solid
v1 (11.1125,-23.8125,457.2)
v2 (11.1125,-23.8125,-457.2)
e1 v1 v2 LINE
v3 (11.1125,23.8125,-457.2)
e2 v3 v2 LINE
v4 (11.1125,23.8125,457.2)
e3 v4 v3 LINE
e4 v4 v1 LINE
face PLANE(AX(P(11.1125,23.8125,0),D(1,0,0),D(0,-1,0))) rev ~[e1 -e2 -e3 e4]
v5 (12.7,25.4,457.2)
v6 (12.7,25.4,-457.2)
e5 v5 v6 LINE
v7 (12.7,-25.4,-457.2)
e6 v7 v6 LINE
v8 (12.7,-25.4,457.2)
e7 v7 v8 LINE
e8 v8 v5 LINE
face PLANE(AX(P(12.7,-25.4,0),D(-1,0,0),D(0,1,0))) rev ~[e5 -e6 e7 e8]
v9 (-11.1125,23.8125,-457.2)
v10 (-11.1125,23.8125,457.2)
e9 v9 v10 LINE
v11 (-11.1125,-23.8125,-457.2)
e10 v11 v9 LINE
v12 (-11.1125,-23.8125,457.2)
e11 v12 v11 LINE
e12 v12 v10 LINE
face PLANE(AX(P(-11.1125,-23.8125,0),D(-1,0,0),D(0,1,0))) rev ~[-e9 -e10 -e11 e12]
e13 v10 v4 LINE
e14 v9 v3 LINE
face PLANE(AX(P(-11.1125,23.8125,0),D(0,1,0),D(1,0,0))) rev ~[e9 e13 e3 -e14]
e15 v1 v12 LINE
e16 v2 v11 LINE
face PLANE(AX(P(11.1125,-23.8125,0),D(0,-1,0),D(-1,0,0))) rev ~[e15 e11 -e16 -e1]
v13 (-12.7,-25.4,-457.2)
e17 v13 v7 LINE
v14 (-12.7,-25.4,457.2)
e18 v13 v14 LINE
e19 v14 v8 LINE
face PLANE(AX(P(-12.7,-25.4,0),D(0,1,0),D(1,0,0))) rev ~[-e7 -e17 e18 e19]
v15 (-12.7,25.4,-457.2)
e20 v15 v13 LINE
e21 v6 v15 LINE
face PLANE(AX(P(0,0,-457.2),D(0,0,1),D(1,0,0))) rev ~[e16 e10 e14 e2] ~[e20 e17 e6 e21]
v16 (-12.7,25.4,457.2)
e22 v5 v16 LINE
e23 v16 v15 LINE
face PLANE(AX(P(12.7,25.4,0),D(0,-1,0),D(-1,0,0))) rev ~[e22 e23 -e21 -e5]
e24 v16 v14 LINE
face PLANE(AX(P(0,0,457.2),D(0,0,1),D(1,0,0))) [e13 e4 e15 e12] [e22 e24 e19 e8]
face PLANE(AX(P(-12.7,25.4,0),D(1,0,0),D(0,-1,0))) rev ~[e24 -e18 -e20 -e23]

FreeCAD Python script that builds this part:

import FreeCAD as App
import Part
import Sketcher

V = App.Vector
Q = App.Units.Quantity


def add_polygon(sketch, points):
    """Adds a closed chain of lines whose ends are joined by coincident constraints."""
    first, n = sketch.GeometryCount, len(points)
    for a, b in zip(points, points[1:] + points[:1]):
        sketch.addGeometry(Part.LineSegment(App.Vector(*a, 0), App.Vector(*b, 0)), False)
    for i in range(n):
        sketch.addConstraint(Sketcher.Constraint("Coincident", first + i, 2, first + (i + 1) % n, 1))

doc = App.newDocument("Part")
body = doc.addObject("PartDesign::Body", "Body")

# Sketch on XY plane
sketch1 = body.newObject("Sketcher::SketchObject", "Sketch")
sketch1.AttachmentSupport = (doc.getObject("XY_Plane"), [""])
sketch1.MapMode = "FlatFace"
add_polygon(sketch1, [(-12.7, 25.4), (-12.7, -25.4), (12.7, -25.4), (12.7, 25.4)])  # lines 0-3
add_polygon(sketch1, [(-11.1125, -23.8125), (-11.1125, 23.8125), (11.1125, 23.8125), (11.1125, -23.8125)])  # lines 4-7
sketch1.addConstraint([
    Sketcher.Constraint("Vertical", 0),
    Sketcher.Constraint("Horizontal", 1),
    Sketcher.Constraint("Vertical", 2),
    Sketcher.Constraint("Horizontal", 3),
    Sketcher.Constraint("Vertical", 4),
    Sketcher.Constraint("Horizontal", 5),
    Sketcher.Constraint("Vertical", 6),
    Sketcher.Constraint("Horizontal", 7),
    Sketcher.Constraint("Symmetric", 0, 2, 2, 2, -1, 1),
    Sketcher.Constraint("Symmetric", 4, 2, 6, 2, -1, 1),
    Sketcher.Constraint("DistanceX", 1, 1, 1, 2, Q("1 in")),
    Sketcher.Constraint("DistanceY", 0, 2, 0, 1, Q("2 in")),
    Sketcher.Constraint("DistanceX", 3, 2, 4, 2, Q("0.0625 in")),
    Sketcher.Constraint("DistanceY", 4, 2, 3, 2, Q("0.0625 in")),
])
pad1 = body.newObject("PartDesign::Pad", "Pad")
pad1.Profile = sketch1
pad1.Length = Q("36 in")
pad1.Midplane = True

doc.recompute()
